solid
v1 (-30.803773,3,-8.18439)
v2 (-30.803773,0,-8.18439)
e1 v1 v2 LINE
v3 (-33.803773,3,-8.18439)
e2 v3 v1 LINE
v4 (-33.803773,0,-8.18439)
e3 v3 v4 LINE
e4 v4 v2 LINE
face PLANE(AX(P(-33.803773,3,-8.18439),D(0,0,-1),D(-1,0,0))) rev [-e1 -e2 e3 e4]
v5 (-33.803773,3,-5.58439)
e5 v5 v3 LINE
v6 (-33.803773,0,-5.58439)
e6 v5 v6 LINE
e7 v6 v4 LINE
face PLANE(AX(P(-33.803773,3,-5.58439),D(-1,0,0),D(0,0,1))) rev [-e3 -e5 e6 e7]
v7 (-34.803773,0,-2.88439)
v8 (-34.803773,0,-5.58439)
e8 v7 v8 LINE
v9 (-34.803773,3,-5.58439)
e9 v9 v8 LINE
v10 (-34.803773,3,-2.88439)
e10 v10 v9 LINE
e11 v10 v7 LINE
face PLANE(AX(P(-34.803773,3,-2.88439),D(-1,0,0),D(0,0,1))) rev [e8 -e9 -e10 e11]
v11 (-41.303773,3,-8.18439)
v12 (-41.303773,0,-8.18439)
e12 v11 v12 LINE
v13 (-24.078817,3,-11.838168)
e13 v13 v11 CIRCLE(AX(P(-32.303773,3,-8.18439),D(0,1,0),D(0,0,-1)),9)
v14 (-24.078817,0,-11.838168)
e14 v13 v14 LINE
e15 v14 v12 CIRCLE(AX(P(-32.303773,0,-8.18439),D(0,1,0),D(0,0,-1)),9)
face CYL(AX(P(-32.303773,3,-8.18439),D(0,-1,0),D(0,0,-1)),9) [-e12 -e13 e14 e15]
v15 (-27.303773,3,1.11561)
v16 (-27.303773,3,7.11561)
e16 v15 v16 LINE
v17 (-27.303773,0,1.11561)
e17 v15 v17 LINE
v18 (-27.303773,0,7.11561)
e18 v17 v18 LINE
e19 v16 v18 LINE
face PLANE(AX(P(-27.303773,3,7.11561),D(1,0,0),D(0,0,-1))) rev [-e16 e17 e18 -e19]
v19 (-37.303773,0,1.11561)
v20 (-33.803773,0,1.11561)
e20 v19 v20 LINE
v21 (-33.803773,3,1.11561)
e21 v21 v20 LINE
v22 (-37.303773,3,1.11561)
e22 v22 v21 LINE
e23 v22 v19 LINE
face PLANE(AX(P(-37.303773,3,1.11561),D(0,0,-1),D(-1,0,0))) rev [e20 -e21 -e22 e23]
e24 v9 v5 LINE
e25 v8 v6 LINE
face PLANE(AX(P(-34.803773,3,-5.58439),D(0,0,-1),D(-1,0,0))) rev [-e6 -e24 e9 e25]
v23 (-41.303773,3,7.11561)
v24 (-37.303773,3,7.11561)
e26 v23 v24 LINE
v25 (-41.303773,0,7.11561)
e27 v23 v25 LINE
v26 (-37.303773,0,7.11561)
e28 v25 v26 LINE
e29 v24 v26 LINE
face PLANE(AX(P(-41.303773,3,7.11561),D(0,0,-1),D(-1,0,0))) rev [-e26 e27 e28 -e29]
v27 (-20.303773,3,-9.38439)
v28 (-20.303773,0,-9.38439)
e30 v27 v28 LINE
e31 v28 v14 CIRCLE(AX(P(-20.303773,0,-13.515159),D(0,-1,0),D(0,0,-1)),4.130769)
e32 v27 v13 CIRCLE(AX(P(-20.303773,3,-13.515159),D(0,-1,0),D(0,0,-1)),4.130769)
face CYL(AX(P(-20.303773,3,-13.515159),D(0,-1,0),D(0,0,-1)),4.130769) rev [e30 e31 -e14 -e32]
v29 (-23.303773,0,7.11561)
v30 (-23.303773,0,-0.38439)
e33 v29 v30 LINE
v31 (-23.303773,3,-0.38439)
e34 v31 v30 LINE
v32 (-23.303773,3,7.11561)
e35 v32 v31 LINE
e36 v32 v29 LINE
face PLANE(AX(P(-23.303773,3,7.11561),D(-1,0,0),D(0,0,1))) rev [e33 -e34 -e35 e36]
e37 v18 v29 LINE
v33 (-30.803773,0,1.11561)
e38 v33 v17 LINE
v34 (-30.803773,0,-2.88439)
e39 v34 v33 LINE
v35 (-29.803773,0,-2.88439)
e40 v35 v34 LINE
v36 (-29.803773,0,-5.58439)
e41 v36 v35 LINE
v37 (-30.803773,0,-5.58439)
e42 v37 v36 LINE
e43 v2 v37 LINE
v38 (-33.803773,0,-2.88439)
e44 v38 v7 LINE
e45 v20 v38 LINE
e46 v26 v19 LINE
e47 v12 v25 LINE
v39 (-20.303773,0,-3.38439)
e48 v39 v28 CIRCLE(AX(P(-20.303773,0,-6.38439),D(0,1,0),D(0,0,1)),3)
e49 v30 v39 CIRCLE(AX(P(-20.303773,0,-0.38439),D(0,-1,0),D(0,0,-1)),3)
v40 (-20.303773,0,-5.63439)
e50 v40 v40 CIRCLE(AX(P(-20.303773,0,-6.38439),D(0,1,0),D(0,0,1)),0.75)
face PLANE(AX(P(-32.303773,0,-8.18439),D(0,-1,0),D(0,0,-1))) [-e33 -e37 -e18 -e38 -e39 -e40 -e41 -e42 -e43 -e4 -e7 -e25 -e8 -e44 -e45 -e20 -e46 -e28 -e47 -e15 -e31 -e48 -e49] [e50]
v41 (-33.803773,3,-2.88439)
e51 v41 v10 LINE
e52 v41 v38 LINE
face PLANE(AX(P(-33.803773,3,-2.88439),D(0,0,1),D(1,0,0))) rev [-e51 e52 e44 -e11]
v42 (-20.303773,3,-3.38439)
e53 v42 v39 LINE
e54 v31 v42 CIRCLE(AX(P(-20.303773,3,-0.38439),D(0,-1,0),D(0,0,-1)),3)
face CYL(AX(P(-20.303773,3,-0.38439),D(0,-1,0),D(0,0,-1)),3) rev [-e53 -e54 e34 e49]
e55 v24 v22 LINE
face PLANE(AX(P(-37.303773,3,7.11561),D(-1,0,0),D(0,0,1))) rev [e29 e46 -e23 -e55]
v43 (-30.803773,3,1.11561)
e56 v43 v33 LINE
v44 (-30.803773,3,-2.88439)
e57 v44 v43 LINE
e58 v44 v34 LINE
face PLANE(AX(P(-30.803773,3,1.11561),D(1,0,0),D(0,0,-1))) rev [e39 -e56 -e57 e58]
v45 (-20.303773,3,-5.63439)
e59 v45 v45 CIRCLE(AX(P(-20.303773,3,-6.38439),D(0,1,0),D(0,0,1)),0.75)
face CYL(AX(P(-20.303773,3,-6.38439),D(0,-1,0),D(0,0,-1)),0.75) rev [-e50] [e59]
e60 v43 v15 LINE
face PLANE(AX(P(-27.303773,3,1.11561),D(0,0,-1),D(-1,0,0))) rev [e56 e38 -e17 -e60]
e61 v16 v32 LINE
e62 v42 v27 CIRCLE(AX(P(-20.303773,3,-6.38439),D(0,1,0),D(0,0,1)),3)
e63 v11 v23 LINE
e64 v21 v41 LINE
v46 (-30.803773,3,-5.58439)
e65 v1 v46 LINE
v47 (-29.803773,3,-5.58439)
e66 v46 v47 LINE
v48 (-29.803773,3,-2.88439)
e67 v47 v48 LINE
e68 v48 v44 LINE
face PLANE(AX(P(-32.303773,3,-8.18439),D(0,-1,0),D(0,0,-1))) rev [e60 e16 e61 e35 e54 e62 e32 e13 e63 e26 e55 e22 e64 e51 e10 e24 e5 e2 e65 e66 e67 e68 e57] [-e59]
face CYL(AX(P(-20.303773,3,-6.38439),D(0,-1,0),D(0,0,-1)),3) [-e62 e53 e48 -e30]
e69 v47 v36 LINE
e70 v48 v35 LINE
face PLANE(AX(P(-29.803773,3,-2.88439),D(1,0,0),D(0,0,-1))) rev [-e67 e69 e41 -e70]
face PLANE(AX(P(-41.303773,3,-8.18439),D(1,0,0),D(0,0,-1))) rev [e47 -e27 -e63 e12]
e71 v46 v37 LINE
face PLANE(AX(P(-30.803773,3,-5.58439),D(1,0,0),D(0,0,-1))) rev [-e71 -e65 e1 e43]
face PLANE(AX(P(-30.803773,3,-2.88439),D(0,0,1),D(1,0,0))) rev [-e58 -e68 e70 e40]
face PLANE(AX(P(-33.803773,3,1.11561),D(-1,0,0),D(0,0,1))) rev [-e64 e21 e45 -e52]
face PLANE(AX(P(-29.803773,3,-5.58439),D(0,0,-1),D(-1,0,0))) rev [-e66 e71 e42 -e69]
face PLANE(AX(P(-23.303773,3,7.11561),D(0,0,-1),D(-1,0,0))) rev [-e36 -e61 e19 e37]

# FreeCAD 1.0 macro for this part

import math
import FreeCAD as App
import Part
import Sketcher

V = App.Vector
Q = App.Units.Quantity

doc = App.newDocument("Part")
body = doc.addObject("PartDesign::Body", "Body")

sketch1 = body.newObject("Sketcher::SketchObject", "Sketch")
sketch1.AttachmentSupport = (doc.getObject("XZ_Plane"), [""])
sketch1.MapMode = "FlatFace"
sketch1.addGeometry(Part.LineSegment(V(-41.3, -8.2, 0), V(-41.3, 7.1, 0)), False)
sketch1.addGeometry(Part.LineSegment(V(-41.3, 7.1, 0), V(-37.3, 7.1, 0)), False)
sketch1.addGeometry(Part.LineSegment(V(-37.3, 7.1, 0), V(-37.3, 1.1, 0)), False)
sketch1.addGeometry(Part.LineSegment(V(-37.3, 1.1, 0), V(-33.8, 1.1, 0)), False)
sketch1.addGeometry(Part.LineSegment(V(-33.8, 1.1, 0), V(-33.8, -2.9, 0)), False)
sketch1.addGeometry(Part.LineSegment(V(-33.8, -2.9, 0), V(-34.8, -2.9, 0)), False)
sketch1.addGeometry(Part.LineSegment(V(-34.8, -2.9, 0), V(-34.8, -5.6, 0)), False)
sketch1.addGeometry(Part.LineSegment(V(-34.8, -5.6, 0), V(-33.8, -5.6, 0)), False)
sketch1.addGeometry(Part.LineSegment(V(-33.8, -5.6, 0), V(-33.8, -8.2, 0)), False)
sketch1.addGeometry(Part.LineSegment(V(-33.8, -8.2, 0), V(-30.8, -8.2, 0)), False)
sketch1.addGeometry(Part.LineSegment(V(-30.8, -8.2, 0), V(-30.8, -5.6, 0)), False)
sketch1.addGeometry(Part.LineSegment(V(-30.8, -5.6, 0), V(-29.8, -5.6, 0)), False)
sketch1.addGeometry(Part.LineSegment(V(-29.8, -5.6, 0), V(-29.8, -2.9, 0)), False)
sketch1.addGeometry(Part.LineSegment(V(-29.8, -2.9, 0), V(-30.8, -2.9, 0)), False)
sketch1.addGeometry(Part.LineSegment(V(-30.8, -2.9, 0), V(-30.8, 1.1, 0)), False)
sketch1.addGeometry(Part.LineSegment(V(-30.8, 1.1, 0), V(-27.3, 1.1, 0)), False)
sketch1.addGeometry(Part.LineSegment(V(-27.3, 1.1, 0), V(-27.3, 7.1, 0)), False)
sketch1.addGeometry(Part.LineSegment(V(-27.3, 7.1, 0), V(-23.3, 7.1, 0)), False)
sketch1.addGeometry(Part.LineSegment(V(-23.3, 7.1, 0), V(-23.3, -0.4, 0)), False)
sketch1.addGeometry(Part.ArcOfCircle(Part.Circle(V(-20.3, -0.4, 0), V(0, 0, 1), 3), math.radians(180), math.radians(270)), False)
sketch1.addGeometry(Part.ArcOfCircle(Part.Circle(V(-20.3, -6.4, 0), V(0, 0, 1), 3), math.radians(-90), math.radians(90)), False)
sketch1.addGeometry(Part.ArcOfCircle(Part.Circle(V(-20.3, -13.5, 0), V(0, 0, 1), 4.1), math.radians(90), math.radians(156)), False)
sketch1.addGeometry(Part.ArcOfCircle(Part.Circle(V(-32.3, -8.2, 0), V(0, 0, 1), 9), math.radians(180), math.radians(336)), False)
sketch1.addGeometry(Part.Circle(V(-20.3, -6.4, 0), V(0, 0, 1), 0.8), False)
sketch1.addConstraint(Sketcher.Constraint("Coincident", 0, 2, 1, 1))
sketch1.addConstraint(Sketcher.Constraint("Coincident", 1, 2, 2, 1))
sketch1.addConstraint(Sketcher.Constraint("Coincident", 2, 2, 3, 1))
sketch1.addConstraint(Sketcher.Constraint("Coincident", 3, 2, 4, 1))
sketch1.addConstraint(Sketcher.Constraint("Coincident", 4, 2, 5, 1))
sketch1.addConstraint(Sketcher.Constraint("Coincident", 5, 2, 6, 1))
sketch1.addConstraint(Sketcher.Constraint("Coincident", 6, 2, 7, 1))
sketch1.addConstraint(Sketcher.Constraint("Coincident", 7, 2, 8, 1))
sketch1.addConstraint(Sketcher.Constraint("Coincident", 8, 2, 9, 1))
sketch1.addConstraint(Sketcher.Constraint("Coincident", 9, 2, 10, 1))
sketch1.addConstraint(Sketcher.Constraint("Coincident", 10, 2, 11, 1))
sketch1.addConstraint(Sketcher.Constraint("Coincident", 11, 2, 12, 1))
sketch1.addConstraint(Sketcher.Constraint("Coincident", 12, 2, 13, 1))
sketch1.addConstraint(Sketcher.Constraint("Coincident", 13, 2, 14, 1))
sketch1.addConstraint(Sketcher.Constraint("Coincident", 14, 2, 15, 1))
sketch1.addConstraint(Sketcher.Constraint("Coincident", 15, 2, 16, 1))
sketch1.addConstraint(Sketcher.Constraint("Coincident", 16, 2, 17, 1))
sketch1.addConstraint(Sketcher.Constraint("Coincident", 17, 2, 18, 1))
sketch1.addConstraint(Sketcher.Constraint("Tangent", 18, 2, 19, 1))
sketch1.addConstraint(Sketcher.Constraint("Tangent", 19, 2, 20, 2))
sketch1.addConstraint(Sketcher.Constraint("Tangent", 20, 1, 21, 1))
sketch1.addConstraint(Sketcher.Constraint("Tangent", 21, 2, 22, 2))
sketch1.addConstraint(Sketcher.Constraint("Tangent", 22, 1, 0, 1))
sketch1.addConstraint(Sketcher.Constraint("Vertical", 0))
sketch1.addConstraint(Sketcher.Constraint("Horizontal", 1))
sketch1.addConstraint(Sketcher.Constraint("Vertical", 2))
sketch1.addConstraint(Sketcher.Constraint("Horizontal", 3))
sketch1.addConstraint(Sketcher.Constraint("Vertical", 4))
sketch1.addConstraint(Sketcher.Constraint("Horizontal", 5))
sketch1.addConstraint(Sketcher.Constraint("Vertical", 6))
sketch1.addConstraint(Sketcher.Constraint("Horizontal", 7))
sketch1.addConstraint(Sketcher.Constraint("Vertical", 8))
sketch1.addConstraint(Sketcher.Constraint("Horizontal", 9))
sketch1.addConstraint(Sketcher.Constraint("Vertical", 10))
sketch1.addConstraint(Sketcher.Constraint("Horizontal", 11))
sketch1.addConstraint(Sketcher.Constraint("Vertical", 12))
sketch1.addConstraint(Sketcher.Constraint("Horizontal", 13))
sketch1.addConstraint(Sketcher.Constraint("Vertical", 14))
sketch1.addConstraint(Sketcher.Constraint("Horizontal", 15))
sketch1.addConstraint(Sketcher.Constraint("Vertical", 16))
sketch1.addConstraint(Sketcher.Constraint("Horizontal", 17))
sketch1.addConstraint(Sketcher.Constraint("Vertical", 18))
sketch1.addConstraint(Sketcher.Constraint("Coincident", 23, 3, 20, 3))
sketch1.addConstraint(Sketcher.Constraint("Equal", 19, 20))
sketch1.addConstraint(Sketcher.Constraint("Horizontal", 22, 3, 8, 2))
sketch1.addConstraint(Sketcher.Constraint("Horizontal", 7, 2, 10, 2))
sketch1.addConstraint(Sketcher.Constraint("Horizontal", 5, 2, 12, 2))
sketch1.addConstraint(Sketcher.Constraint("Horizontal", 3, 2, 14, 2))
sketch1.addConstraint(Sketcher.Constraint("Horizontal", 1, 2, 16, 2))
sketch1.addConstraint(Sketcher.Constraint("Vertical", 19, 3, 20, 3))
sketch1.addConstraint(Sketcher.Constraint("Vertical", 20, 3, 21, 3))
sketch1.addConstraint(Sketcher.Constraint("Vertical", 4, 2, 7, 2))
sketch1.addConstraint(Sketcher.Constraint("Vertical", 10, 2, 13, 2))
sketch1.addConstraint(Sketcher.Constraint("Equal", 7, 11))
sketch1.addConstraint(Sketcher.Constraint("Equal", 3, 15))
sketch1.addConstraint(Sketcher.Constraint("Equal", 1, 17))
sketch1.addConstraint(Sketcher.Constraint("Equal", 17, 4))
sketch1.addConstraint(Sketcher.Constraint("Radius", 19, Q("3 mm")))
sketch1.addConstraint(Sketcher.Constraint("Radius", 22, Q("9 mm")))
sketch1.addConstraint(Sketcher.Constraint("Diameter", 23, Q("1.5 mm")))
sketch1.addConstraint(Sketcher.Constraint("DistanceX", 1, 1, 1, 2, Q("4 mm")))
sketch1.addConstraint(Sketcher.Constraint("DistanceX", 5, 2, 5, 1, Q("1 mm")))
sketch1.addConstraint(Sketcher.Constraint("DistanceX", 9, 1, 9, 2, Q("3 mm")))
sketch1.addConstraint(Sketcher.Constraint("DistanceY", 2, 2, 2, 1, Q("6 mm")))
sketch1.addConstraint(Sketcher.Constraint("DistanceX", 3, 1, 3, 2, Q("3.5 mm")))
sketch1.addConstraint(Sketcher.Constraint("DistanceY", 0, 1, 0, 2, Q("15.3 mm")))
sketch1.addConstraint(Sketcher.Constraint("DistanceY", 6, 2, 6, 1, Q("2.7 mm")))
sketch1.addConstraint(Sketcher.Constraint("DistanceY", 18, 2, 18, 1, Q("7.5 mm")))
sketch1.addConstraint(Sketcher.Constraint("DistanceY", 19, 3, -1, 1, Q("0.38439 mm")))
sketch1.addConstraint(Sketcher.Constraint("DistanceX", 19, 3, -1, 1, Q("20.303773 mm")))
pad1 = body.newObject("PartDesign::Pad", "Pad")
pad1.Profile = sketch1
pad1.Length = 3
pad1.Reversed = True

doc.recompute()
